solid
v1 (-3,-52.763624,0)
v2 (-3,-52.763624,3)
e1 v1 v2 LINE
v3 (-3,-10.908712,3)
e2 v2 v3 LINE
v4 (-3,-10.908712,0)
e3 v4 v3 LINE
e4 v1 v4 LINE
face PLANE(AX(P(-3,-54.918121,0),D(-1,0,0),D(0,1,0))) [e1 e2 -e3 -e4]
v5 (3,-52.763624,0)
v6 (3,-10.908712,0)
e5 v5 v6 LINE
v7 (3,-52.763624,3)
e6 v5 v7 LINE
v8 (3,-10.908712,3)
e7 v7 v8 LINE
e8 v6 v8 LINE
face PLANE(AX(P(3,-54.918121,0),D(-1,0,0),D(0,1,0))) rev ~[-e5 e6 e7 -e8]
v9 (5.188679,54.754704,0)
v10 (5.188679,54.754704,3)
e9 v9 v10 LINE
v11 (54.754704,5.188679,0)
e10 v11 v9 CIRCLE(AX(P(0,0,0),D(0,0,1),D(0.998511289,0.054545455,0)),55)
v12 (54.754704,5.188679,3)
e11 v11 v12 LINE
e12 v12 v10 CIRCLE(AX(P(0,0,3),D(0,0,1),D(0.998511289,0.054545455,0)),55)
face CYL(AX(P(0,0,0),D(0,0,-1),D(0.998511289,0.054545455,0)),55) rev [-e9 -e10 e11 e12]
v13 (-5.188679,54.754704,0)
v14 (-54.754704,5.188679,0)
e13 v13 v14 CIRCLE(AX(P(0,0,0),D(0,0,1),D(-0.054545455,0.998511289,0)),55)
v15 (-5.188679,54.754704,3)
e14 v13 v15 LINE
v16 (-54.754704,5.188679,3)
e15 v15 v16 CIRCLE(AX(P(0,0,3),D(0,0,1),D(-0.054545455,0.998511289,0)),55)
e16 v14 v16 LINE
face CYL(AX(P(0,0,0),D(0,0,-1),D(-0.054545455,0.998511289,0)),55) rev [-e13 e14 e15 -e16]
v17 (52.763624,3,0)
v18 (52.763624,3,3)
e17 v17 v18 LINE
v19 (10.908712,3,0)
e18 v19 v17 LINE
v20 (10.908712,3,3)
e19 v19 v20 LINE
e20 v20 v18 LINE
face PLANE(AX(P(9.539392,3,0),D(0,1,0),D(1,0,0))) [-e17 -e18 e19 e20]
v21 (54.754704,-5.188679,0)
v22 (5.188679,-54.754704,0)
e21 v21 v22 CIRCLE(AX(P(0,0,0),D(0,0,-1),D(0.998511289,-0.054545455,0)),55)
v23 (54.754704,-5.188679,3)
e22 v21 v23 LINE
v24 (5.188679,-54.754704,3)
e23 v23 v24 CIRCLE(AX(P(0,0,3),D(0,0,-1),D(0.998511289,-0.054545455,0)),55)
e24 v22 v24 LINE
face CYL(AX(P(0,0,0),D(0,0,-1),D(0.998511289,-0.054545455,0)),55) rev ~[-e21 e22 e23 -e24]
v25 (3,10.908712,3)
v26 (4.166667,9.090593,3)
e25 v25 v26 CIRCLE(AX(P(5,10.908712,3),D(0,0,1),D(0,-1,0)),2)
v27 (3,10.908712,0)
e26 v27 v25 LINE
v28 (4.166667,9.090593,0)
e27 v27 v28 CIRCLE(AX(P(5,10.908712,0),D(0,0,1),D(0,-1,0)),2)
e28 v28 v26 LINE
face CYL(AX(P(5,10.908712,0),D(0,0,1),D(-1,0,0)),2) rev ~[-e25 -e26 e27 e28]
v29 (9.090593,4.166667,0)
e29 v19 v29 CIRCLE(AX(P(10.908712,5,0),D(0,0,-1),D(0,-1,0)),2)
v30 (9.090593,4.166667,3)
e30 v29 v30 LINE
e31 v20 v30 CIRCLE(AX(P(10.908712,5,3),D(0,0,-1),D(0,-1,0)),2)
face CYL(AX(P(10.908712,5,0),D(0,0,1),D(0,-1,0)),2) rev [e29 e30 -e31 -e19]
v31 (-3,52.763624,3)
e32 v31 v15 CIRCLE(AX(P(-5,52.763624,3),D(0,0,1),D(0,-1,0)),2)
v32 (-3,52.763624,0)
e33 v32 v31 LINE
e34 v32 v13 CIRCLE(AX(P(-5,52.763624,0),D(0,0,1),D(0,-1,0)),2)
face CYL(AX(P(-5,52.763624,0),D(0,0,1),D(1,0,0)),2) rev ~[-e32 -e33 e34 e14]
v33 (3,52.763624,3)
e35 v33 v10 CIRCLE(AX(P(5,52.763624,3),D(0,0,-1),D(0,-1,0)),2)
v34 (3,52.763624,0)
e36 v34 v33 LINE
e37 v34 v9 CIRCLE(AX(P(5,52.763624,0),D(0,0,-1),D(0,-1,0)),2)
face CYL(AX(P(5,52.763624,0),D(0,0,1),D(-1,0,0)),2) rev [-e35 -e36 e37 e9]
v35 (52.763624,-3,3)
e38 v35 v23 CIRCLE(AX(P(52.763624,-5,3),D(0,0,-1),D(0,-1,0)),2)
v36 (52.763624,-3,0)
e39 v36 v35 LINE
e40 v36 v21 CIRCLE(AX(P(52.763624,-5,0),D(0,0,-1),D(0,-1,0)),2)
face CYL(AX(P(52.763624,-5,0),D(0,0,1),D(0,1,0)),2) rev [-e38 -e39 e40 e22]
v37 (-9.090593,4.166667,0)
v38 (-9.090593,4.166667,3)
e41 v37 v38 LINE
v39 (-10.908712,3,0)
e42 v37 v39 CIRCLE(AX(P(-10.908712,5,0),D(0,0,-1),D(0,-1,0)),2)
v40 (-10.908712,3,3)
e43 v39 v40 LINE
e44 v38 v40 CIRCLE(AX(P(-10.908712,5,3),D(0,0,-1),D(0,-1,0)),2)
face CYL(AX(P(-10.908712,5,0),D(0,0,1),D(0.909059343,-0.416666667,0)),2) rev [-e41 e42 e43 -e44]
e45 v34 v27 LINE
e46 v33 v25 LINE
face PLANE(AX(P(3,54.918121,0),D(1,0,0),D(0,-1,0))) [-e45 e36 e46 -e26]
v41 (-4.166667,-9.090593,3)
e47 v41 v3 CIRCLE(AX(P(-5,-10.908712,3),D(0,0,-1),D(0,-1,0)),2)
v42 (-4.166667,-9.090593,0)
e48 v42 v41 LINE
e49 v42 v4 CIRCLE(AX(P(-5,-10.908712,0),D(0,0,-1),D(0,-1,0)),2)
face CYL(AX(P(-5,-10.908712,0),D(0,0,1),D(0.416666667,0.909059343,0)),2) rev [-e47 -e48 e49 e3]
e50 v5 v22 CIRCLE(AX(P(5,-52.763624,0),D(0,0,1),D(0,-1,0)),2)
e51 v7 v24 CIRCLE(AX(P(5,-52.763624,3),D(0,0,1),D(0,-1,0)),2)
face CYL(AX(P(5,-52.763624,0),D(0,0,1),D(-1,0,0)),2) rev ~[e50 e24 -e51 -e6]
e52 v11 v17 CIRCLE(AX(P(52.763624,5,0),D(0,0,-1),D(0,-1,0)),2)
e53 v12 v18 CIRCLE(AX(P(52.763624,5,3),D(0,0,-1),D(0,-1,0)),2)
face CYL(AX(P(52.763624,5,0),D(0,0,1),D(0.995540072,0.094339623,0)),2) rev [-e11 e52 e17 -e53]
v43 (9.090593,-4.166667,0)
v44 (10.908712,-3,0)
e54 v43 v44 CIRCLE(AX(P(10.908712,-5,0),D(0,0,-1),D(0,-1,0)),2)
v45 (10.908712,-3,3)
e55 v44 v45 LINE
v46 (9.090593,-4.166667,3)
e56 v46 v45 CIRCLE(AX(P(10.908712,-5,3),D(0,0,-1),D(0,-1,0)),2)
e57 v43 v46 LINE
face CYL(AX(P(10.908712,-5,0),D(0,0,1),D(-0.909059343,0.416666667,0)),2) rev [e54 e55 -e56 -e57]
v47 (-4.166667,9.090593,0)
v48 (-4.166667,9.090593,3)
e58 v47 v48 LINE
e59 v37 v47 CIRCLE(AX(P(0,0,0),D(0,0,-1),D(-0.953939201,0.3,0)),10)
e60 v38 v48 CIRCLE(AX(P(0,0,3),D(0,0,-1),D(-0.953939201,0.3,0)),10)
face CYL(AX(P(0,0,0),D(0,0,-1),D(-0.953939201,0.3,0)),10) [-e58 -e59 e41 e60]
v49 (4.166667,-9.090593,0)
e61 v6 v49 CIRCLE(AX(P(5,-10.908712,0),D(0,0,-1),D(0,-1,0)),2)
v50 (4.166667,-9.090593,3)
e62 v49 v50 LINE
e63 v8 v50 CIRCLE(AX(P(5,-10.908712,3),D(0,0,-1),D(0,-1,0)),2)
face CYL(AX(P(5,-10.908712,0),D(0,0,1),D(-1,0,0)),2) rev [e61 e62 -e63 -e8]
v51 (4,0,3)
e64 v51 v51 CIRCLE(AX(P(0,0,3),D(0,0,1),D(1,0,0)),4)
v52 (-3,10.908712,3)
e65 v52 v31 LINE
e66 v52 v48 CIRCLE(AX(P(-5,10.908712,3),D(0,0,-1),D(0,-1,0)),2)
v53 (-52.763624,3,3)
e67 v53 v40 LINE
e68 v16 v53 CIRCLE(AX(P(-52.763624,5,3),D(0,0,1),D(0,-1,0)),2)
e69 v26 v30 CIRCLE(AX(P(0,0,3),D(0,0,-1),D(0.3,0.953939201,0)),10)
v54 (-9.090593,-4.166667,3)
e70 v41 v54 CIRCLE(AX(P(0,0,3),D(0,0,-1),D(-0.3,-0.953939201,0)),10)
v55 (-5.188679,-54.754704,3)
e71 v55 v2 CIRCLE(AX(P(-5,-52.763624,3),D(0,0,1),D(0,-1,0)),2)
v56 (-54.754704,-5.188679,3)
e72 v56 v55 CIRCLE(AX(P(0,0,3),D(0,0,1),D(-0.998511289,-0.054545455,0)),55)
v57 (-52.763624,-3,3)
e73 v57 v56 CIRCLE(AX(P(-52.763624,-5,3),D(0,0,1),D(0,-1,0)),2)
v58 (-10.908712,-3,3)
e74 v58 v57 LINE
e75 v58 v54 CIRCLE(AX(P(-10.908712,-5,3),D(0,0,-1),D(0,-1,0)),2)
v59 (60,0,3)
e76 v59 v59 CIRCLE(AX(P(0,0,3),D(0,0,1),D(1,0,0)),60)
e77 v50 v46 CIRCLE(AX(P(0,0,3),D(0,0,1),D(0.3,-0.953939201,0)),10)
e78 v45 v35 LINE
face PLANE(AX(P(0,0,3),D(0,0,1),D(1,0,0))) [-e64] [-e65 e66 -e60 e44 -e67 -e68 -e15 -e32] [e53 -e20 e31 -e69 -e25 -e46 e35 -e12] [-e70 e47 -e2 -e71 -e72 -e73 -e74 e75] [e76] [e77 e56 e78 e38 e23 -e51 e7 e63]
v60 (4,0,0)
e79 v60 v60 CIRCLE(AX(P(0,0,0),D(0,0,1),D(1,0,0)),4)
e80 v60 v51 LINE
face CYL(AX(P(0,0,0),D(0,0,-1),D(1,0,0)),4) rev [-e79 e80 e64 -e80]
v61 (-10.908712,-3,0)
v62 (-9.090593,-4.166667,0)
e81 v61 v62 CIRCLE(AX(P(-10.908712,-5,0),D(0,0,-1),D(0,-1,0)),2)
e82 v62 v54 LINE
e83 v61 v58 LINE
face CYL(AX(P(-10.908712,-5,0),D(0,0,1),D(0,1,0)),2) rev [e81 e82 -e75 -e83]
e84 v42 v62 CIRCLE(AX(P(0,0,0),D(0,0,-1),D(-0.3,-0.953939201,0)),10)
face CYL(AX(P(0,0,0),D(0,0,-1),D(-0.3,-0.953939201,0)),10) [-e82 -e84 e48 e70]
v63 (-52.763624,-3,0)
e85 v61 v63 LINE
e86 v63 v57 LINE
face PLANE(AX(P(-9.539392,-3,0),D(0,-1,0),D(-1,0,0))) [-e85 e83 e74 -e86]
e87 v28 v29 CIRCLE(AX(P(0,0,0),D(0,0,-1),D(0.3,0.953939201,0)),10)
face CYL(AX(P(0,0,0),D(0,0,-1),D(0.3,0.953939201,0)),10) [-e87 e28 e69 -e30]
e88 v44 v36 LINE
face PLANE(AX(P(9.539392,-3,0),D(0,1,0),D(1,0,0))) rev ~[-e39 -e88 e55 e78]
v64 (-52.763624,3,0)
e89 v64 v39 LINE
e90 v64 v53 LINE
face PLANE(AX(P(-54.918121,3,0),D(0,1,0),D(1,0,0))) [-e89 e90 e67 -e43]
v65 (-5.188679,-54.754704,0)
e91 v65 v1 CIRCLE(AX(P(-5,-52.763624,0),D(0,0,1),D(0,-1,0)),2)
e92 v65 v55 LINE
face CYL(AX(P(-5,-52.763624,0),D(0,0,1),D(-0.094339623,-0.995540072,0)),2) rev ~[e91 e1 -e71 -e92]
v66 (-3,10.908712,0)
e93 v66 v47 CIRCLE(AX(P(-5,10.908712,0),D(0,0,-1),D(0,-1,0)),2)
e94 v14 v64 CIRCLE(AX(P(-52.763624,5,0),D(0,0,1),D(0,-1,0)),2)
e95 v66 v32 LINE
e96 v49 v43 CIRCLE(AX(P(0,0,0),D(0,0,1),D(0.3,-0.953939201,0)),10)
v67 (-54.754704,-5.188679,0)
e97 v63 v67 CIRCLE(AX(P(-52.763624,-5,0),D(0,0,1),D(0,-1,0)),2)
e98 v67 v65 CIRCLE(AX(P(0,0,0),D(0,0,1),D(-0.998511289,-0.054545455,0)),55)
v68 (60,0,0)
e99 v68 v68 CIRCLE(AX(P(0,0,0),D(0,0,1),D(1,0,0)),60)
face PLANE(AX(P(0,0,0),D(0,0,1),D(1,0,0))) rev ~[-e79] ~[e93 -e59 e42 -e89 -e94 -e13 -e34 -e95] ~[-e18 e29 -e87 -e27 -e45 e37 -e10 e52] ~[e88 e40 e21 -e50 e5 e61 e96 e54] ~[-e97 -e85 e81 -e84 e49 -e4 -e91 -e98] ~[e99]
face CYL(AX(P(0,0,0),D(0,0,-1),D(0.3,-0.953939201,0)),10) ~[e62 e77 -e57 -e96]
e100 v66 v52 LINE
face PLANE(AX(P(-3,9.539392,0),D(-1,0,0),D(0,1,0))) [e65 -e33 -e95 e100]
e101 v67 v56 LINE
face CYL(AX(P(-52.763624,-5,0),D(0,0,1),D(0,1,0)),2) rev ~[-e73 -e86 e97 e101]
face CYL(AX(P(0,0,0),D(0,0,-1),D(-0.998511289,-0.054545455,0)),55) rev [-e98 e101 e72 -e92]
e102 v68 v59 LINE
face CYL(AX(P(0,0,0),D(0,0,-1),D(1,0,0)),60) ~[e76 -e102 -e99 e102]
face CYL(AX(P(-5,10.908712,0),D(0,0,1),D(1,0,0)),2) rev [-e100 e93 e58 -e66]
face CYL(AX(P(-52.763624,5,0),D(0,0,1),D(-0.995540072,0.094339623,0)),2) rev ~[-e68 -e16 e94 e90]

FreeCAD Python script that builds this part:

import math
import FreeCAD as App
import Part
import Sketcher
from FreeCAD import Vector


def edges_at(feature, points):
    """Names of the edges that pass closest to the given points."""
    edges = feature.Shape.Edges
    near = lambda p: min(range(len(edges)), key=lambda i: edges[i].distToShape(Part.Vertex(*p))[0])
    return sorted({f"Edge{near(p) + 1}" for p in points})

doc = App.newDocument("Part")
body = doc.addObject("PartDesign::Body", "Body")

# Sketch on XY plane
sketch1 = body.newObject("Sketcher::SketchObject", "Sketch")
sketch1.AttachmentSupport = (doc.getObject("XY_Plane"), [""])
sketch1.MapMode = "FlatFace"
sketch1.addGeometry(Part.Circle(Vector(0, 0, 0), Vector(0, 0, 1), 60), False)
sketch1.addGeometry(Part.LineSegment(Vector(-54.9, -3, 0), Vector(-9.5, -3, 0)), False)
sketch1.addGeometry(Part.ArcOfCircle(Part.Circle(Vector(0, 0, 0), Vector(0, 0, 1), 10), math.radians(-163), math.radians(-107)), False)
sketch1.addGeometry(Part.LineSegment(Vector(-3, -9.5, 0), Vector(-3, -54.9, 0)), False)
sketch1.addGeometry(Part.ArcOfCircle(Part.Circle(Vector(0, 0, 0), Vector(0, 0, 1), 55), math.radians(-177), math.radians(-93)), False)
sketch1.addGeometry(Part.ArcOfCircle(Part.Circle(Vector(0, 0, 0), Vector(0, 0, 1), 10), math.radians(-73), math.radians(-17)), False)
sketch1.addGeometry(Part.LineSegment(Vector(9.5, -3, 0), Vector(54.9, -3, 0)), False)
sketch1.addGeometry(Part.ArcOfCircle(Part.Circle(Vector(0, 0, 0), Vector(0, 0, 1), 55), math.radians(-87), math.radians(-3)), False)
sketch1.addGeometry(Part.LineSegment(Vector(3, -54.9, 0), Vector(3, -9.5, 0)), False)
sketch1.addGeometry(Part.LineSegment(Vector(-3, 54.9, 0), Vector(-3, 9.5, 0)), False)
sketch1.addGeometry(Part.ArcOfCircle(Part.Circle(Vector(0, 0, 0), Vector(0, 0, 1), 10), math.radians(107), math.radians(163)), False)
sketch1.addGeometry(Part.LineSegment(Vector(-9.5, 3, 0), Vector(-54.9, 3, 0)), False)
sketch1.addGeometry(Part.ArcOfCircle(Part.Circle(Vector(0, 0, 0), Vector(0, 0, 1), 55), math.radians(93), math.radians(177)), False)
sketch1.addGeometry(Part.Circle(Vector(0, 0, 0), Vector(0, 0, 1), 4), False)
sketch1.addGeometry(Part.LineSegment(Vector(3, 9.5, 0), Vector(3, 54.9, 0)), False)
sketch1.addGeometry(Part.ArcOfCircle(Part.Circle(Vector(0, 0, 0), Vector(0, 0, 1), 55), math.radians(3), math.radians(87)), False)
sketch1.addGeometry(Part.LineSegment(Vector(54.9, 3, 0), Vector(9.5, 3, 0)), False)
sketch1.addGeometry(Part.ArcOfCircle(Part.Circle(Vector(0, 0, 0), Vector(0, 0, 1), 10), math.radians(17), math.radians(73)), False)
sketch1.addConstraint(Sketcher.Constraint("Coincident", 1, 2, 2, 1))
sketch1.addConstraint(Sketcher.Constraint("Coincident", 2, 2, 3, 1))
sketch1.addConstraint(Sketcher.Constraint("Coincident", 3, 2, 4, 2))
sketch1.addConstraint(Sketcher.Constraint("Coincident", 4, 1, 1, 1))
sketch1.addConstraint(Sketcher.Constraint("Coincident", 5, 2, 6, 1))
sketch1.addConstraint(Sketcher.Constraint("Coincident", 6, 2, 7, 2))
sketch1.addConstraint(Sketcher.Constraint("Coincident", 7, 1, 8, 1))
sketch1.addConstraint(Sketcher.Constraint("Coincident", 8, 2, 5, 1))
sketch1.addConstraint(Sketcher.Constraint("Coincident", 9, 2, 10, 1))
sketch1.addConstraint(Sketcher.Constraint("Coincident", 10, 2, 11, 1))
sketch1.addConstraint(Sketcher.Constraint("Coincident", 11, 2, 12, 2))
sketch1.addConstraint(Sketcher.Constraint("Coincident", 12, 1, 9, 1))
sketch1.addConstraint(Sketcher.Constraint("Coincident", 14, 2, 15, 2))
sketch1.addConstraint(Sketcher.Constraint("Coincident", 15, 1, 16, 1))
sketch1.addConstraint(Sketcher.Constraint("Coincident", 16, 2, 17, 1))
sketch1.addConstraint(Sketcher.Constraint("Coincident", 17, 2, 14, 1))
sketch1.addConstraint(Sketcher.Constraint("Horizontal", 1))
sketch1.addConstraint(Sketcher.Constraint("Vertical", 3))
sketch1.addConstraint(Sketcher.Constraint("Horizontal", 6))
sketch1.addConstraint(Sketcher.Constraint("Vertical", 8))
sketch1.addConstraint(Sketcher.Constraint("Vertical", 9))
sketch1.addConstraint(Sketcher.Constraint("Horizontal", 11))
sketch1.addConstraint(Sketcher.Constraint("Vertical", 14))
sketch1.addConstraint(Sketcher.Constraint("Horizontal", 16))
sketch1.addConstraint(Sketcher.Constraint("Coincident", 0, 3, -1, 1))
sketch1.addConstraint(Sketcher.Constraint("Coincident", 2, 3, -1, 1))
sketch1.addConstraint(Sketcher.Constraint("Coincident", 4, 3, -1, 1))
sketch1.addConstraint(Sketcher.Constraint("Coincident", 5, 3, -1, 1))
sketch1.addConstraint(Sketcher.Constraint("Coincident", 7, 3, -1, 1))
sketch1.addConstraint(Sketcher.Constraint("Coincident", 10, 3, -1, 1))
sketch1.addConstraint(Sketcher.Constraint("Coincident", 12, 3, -1, 1))
sketch1.addConstraint(Sketcher.Constraint("Coincident", 13, 3, -1, 1))
sketch1.addConstraint(Sketcher.Constraint("Coincident", 15, 3, -1, 1))
sketch1.addConstraint(Sketcher.Constraint("Coincident", 17, 3, -1, 1))
sketch1.addConstraint(Sketcher.Constraint("Equal", 2, 5))
sketch1.addConstraint(Sketcher.Constraint("Equal", 4, 7))
sketch1.addConstraint(Sketcher.Constraint("Equal", 5, 10))
sketch1.addConstraint(Sketcher.Constraint("Equal", 7, 12))
sketch1.addConstraint(Sketcher.Constraint("Equal", 12, 15))
sketch1.addConstraint(Sketcher.Constraint("Equal", 10, 17))
sketch1.addConstraint(Sketcher.Constraint("Horizontal", 4, 1, 5, 2))
sketch1.addConstraint(Sketcher.Constraint("Horizontal", 3, 2, 7, 1))
sketch1.addConstraint(Sketcher.Constraint("Horizontal", 12, 1, 14, 2))
sketch1.addConstraint(Sketcher.Constraint("Horizontal", 11, 2, 15, 1))
sketch1.addConstraint(Sketcher.Constraint("Vertical", 3, 2, 9, 2))
sketch1.addConstraint(Sketcher.Constraint("Vertical", 1, 2, 10, 2))
sketch1.addConstraint(Sketcher.Constraint("Equal", 16, 3))
sketch1.addConstraint(Sketcher.Constraint("Diameter", 0, 120.0))
sketch1.addConstraint(Sketcher.Constraint("Diameter", 13, 8.0))
sketch1.addConstraint(Sketcher.Constraint("Radius", 2, 10.0))
sketch1.addConstraint(Sketcher.Constraint("Radius", 4, 55.0))
sketch1.addConstraint(Sketcher.Constraint("DistanceY", 1, 2, -1, 1, 3.0))
pad1 = body.newObject("PartDesign::Pad", "Pad")
pad1.Profile = sketch1
pad1.Length = 3
doc.recompute()

fillet = body.newObject("PartDesign::Fillet", "Fillet")
fillet.Base = (pad1, edges_at(pad1, [(3, 54.918, 1.5)]))
fillet.Radius = 2
doc.recompute()

fillet2 = body.newObject("PartDesign::Fillet", "Fillet001")
fillet2.Base = (fillet, edges_at(fillet, [
    (54.918, 3, 1.5),
    (3, -54.918, 1.5),
    (54.918, -3, 1.5),
    (-54.918, -3, 1.5),
    (-3, -54.918, 1.5),
    (-3, 54.918, 1.5),
    (-54.918, 3, 1.5),
]))
fillet2.Radius = 2
doc.recompute()

fillet3 = body.newObject("PartDesign::Fillet", "Fillet002")
fillet3.Base = (fillet2, edges_at(fillet2, [
    (3, 9.539, 1.5),
    (9.539, 3, 1.5),
    (9.539, -3, 1.5),
    (3, -9.539, 1.5),
    (-3, -9.539, 1.5),
    (-9.539, -3, 1.5),
    (-9.539, 3, 1.5),
    (-3, 9.539, 1.5),
]))
fillet3.Radius = 2

doc.recompute()
